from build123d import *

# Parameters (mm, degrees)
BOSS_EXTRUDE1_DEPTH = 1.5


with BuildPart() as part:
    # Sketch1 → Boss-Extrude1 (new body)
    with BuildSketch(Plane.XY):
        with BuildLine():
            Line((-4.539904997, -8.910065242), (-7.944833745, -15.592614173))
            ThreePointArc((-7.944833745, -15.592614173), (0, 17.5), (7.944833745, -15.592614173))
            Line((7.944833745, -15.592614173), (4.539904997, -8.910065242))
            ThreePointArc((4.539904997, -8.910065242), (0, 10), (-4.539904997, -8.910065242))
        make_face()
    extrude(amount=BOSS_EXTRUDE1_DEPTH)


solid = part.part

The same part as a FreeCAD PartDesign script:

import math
import FreeCAD as App
import Part
import Sketcher
from FreeCAD import Vector
Q = App.Units.Quantity

doc = App.newDocument("Part")
body = doc.addObject("PartDesign::Body", "Body")

# Sketch on XY plane
sketch1 = doc.addObject("Sketcher::SketchObject", "Sketch")
body.addObject(sketch1)
sketch1.AttachmentSupport = (doc.XY_Plane, [""])
sketch1.MapMode = "FlatFace"
sketch1.addGeometry([
    Part.LineSegment(Vector(-8, -16, 0), Vector(-5, -9, 0)),
    Part.ArcOfCircle(Part.Circle(Vector(0, 0, 0), Vector(0, 0, 1), 10), math.radians(-63), math.radians(243)),
    Part.LineSegment(Vector(5, -9, 0), Vector(8, -16, 0)),
    Part.ArcOfCircle(Part.Circle(Vector(0, 0, 0), Vector(0, 0, 1), 18), math.radians(-63), math.radians(243)),
], False)
sketch1.addConstraint([
    Sketcher.Constraint("Coincident", 0, 2, 1, 2),
    Sketcher.Constraint("Coincident", 1, 1, 2, 1),
    Sketcher.Constraint("Coincident", 2, 2, 3, 1),
    Sketcher.Constraint("Coincident", 3, 2, 0, 1),
    Sketcher.Constraint("Coincident", 1, 3, -1, 1),
    Sketcher.Constraint("Coincident", 3, 3, -1, 1),
    Sketcher.Constraint("Horizontal", 0, 2, 1, 1),
    Sketcher.Constraint("Horizontal", 2, 2, 3, 2),
    Sketcher.Constraint("Radius", 1, Q("10 mm")),
    Sketcher.Constraint("Radius", 3, Q("17.5 mm")),
    Sketcher.Constraint("Angle", 0, Q("63 deg")),
    Sketcher.Constraint("DistanceX", 0, 2, 1, 1, Q("9.07981 mm")),
])
pad1 = doc.addObject("PartDesign::Pad", "Pad")
body.addObject(pad1)
pad1.Profile = sketch1
pad1.Length = 1.5

doc.recompute()
